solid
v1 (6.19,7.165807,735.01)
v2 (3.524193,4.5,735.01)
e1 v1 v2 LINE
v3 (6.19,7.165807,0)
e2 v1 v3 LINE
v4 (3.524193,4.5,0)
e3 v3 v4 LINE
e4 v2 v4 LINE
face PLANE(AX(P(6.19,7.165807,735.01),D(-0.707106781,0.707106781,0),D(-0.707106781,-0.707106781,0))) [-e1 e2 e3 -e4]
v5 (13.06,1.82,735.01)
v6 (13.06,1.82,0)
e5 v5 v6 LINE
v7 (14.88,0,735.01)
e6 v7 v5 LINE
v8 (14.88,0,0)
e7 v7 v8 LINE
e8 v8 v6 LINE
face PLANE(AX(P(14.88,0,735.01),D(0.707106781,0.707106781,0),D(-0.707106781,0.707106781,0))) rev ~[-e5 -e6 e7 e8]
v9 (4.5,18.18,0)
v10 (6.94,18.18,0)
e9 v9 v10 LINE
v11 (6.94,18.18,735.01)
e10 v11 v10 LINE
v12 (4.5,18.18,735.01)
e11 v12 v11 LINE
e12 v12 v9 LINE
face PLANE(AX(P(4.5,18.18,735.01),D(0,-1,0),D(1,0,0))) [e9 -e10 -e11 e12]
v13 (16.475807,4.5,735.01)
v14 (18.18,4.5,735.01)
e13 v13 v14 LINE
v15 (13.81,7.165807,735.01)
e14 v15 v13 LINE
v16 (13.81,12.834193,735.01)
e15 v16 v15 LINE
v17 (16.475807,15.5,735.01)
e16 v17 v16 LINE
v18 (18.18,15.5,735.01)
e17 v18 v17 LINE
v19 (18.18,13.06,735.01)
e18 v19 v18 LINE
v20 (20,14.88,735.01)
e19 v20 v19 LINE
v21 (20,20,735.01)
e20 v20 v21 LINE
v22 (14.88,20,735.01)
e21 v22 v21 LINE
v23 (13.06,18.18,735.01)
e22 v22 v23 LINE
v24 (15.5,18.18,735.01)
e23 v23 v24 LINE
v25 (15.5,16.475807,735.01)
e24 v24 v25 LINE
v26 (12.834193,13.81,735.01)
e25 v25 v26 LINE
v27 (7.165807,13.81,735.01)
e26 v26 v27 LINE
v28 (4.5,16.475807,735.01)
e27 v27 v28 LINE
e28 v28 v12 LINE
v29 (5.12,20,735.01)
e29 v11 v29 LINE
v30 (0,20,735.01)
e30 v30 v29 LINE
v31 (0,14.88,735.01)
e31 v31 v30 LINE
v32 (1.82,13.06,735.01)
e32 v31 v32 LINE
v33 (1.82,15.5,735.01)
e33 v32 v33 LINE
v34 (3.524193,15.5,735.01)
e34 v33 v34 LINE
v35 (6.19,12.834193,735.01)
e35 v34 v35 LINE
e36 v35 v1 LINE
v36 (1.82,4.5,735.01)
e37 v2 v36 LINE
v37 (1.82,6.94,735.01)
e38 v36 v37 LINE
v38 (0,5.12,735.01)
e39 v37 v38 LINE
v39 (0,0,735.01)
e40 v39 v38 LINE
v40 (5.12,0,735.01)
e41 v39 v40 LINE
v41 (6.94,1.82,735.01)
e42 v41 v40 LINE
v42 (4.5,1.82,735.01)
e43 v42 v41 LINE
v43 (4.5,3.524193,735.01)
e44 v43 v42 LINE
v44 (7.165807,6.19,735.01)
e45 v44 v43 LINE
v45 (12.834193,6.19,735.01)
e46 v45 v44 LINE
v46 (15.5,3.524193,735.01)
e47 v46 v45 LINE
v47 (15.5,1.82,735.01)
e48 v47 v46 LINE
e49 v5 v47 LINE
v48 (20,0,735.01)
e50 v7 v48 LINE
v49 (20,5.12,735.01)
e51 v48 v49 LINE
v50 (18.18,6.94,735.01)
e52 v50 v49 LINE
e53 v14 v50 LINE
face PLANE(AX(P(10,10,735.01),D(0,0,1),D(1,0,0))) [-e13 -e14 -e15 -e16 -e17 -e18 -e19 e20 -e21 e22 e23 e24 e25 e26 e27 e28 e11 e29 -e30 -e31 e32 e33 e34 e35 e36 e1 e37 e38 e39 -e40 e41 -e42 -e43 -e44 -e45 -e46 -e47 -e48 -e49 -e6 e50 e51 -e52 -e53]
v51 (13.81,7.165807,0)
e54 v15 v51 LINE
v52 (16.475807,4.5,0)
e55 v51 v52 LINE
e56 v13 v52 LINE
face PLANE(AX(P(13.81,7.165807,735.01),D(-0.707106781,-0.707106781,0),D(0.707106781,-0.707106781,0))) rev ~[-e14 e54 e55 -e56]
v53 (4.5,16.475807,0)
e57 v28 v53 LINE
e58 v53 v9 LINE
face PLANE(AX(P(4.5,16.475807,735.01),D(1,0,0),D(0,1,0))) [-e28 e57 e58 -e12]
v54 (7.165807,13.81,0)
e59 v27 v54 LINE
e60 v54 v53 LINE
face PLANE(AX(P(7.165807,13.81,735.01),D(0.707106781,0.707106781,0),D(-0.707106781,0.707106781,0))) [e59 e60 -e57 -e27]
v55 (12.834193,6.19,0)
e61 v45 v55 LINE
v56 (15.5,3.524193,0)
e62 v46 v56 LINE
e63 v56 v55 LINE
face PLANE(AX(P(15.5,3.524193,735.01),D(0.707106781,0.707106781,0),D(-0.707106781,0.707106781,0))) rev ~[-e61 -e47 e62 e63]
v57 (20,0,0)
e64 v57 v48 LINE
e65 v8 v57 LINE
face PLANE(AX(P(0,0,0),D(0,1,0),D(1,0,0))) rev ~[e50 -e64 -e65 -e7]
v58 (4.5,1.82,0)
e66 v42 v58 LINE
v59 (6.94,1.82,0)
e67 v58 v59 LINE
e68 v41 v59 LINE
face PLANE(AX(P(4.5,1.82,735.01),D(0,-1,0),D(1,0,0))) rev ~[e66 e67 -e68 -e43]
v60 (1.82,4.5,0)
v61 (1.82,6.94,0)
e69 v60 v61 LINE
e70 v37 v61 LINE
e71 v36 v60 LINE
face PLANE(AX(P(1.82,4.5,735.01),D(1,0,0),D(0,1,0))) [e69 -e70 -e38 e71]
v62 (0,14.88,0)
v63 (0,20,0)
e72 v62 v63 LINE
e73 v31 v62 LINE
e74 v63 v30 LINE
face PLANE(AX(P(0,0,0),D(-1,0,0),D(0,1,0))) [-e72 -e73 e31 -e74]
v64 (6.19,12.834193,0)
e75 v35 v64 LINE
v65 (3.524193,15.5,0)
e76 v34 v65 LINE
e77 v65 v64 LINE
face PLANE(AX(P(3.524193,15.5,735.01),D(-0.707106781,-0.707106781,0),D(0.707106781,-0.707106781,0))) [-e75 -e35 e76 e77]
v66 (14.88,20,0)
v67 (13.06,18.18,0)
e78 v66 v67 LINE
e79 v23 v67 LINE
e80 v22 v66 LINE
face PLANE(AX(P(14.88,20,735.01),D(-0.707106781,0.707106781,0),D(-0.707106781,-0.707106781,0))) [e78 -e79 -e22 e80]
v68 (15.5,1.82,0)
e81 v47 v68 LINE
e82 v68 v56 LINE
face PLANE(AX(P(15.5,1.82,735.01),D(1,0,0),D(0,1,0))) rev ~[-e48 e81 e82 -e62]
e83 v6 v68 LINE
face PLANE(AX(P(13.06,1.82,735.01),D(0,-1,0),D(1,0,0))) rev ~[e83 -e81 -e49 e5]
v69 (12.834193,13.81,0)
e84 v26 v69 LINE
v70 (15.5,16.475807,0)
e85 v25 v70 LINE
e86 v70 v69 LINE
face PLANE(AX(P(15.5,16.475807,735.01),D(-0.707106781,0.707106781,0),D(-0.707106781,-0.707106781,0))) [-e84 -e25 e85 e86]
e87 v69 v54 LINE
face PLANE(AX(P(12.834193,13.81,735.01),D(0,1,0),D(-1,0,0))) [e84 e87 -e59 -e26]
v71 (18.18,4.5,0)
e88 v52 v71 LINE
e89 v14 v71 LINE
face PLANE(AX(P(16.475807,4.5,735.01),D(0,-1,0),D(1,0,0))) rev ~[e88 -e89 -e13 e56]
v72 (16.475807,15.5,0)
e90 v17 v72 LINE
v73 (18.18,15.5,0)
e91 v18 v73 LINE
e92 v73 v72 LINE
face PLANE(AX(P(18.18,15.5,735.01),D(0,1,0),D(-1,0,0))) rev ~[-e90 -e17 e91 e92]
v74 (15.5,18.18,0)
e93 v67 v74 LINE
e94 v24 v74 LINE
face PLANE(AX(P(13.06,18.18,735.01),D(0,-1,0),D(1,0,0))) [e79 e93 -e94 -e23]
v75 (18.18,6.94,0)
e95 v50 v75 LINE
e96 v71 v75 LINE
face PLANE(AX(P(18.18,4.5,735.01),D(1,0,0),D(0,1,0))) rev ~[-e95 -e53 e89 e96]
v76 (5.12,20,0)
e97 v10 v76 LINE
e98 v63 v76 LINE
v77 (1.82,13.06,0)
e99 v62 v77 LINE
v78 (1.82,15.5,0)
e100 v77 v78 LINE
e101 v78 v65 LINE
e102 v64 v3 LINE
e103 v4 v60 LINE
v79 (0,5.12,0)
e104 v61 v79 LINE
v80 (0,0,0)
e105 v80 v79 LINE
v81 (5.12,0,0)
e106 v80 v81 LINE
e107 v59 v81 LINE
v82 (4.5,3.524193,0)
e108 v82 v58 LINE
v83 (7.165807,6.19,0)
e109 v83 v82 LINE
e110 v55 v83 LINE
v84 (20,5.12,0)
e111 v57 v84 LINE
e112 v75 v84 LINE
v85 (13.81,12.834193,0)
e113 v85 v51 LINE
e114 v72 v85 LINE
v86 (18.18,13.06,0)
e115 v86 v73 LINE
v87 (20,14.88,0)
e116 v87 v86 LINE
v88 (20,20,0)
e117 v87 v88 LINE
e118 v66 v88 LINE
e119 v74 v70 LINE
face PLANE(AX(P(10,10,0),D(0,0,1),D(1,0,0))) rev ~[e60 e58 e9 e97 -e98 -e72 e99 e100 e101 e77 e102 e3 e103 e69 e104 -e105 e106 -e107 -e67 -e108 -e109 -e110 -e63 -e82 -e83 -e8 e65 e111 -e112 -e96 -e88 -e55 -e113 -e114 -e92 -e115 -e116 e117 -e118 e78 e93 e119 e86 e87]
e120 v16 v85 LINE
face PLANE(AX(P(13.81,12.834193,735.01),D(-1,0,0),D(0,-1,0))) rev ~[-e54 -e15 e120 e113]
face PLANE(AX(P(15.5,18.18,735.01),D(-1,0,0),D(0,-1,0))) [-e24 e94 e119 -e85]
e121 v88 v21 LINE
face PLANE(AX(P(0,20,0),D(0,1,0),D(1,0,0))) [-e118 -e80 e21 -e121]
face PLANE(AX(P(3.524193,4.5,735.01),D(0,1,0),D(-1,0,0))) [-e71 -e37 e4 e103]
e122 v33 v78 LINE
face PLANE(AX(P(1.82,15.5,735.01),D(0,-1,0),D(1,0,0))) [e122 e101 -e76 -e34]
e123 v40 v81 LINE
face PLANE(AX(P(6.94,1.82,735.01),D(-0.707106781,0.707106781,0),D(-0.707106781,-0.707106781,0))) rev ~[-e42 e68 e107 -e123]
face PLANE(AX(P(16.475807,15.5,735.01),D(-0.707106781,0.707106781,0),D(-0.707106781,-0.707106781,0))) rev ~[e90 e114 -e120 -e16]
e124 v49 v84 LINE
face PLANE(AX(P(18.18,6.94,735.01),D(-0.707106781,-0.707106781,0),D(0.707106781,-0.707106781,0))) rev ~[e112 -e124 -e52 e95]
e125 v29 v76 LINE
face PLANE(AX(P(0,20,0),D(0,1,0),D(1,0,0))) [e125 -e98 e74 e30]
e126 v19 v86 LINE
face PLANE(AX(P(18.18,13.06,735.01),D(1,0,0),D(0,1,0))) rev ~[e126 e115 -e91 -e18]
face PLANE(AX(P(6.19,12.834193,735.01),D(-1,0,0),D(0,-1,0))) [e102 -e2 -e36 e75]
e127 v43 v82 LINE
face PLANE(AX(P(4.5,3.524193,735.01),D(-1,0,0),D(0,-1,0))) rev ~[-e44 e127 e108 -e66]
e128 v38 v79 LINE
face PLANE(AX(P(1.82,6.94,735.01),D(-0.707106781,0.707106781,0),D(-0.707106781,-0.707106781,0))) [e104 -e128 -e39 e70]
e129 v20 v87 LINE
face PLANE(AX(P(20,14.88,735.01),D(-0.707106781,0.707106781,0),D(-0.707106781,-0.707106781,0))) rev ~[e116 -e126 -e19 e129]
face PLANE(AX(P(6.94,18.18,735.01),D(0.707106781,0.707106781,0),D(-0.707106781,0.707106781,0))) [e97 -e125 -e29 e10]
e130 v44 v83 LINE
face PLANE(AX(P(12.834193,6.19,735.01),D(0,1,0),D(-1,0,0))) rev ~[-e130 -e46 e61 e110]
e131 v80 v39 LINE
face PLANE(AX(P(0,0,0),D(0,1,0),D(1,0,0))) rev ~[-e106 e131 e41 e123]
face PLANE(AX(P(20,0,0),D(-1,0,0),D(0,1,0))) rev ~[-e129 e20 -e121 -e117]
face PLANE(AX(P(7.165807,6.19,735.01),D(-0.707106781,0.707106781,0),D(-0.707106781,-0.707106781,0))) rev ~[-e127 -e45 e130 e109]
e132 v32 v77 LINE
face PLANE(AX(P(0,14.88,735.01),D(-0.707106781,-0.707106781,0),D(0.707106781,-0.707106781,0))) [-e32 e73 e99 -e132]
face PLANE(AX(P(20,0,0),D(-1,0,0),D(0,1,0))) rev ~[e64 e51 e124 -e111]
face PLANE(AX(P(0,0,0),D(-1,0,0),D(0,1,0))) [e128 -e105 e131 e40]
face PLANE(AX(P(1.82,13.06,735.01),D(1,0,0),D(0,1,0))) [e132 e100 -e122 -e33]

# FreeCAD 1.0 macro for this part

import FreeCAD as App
import Part
import Sketcher
from FreeCAD import Vector
Q = App.Units.Quantity

doc = App.newDocument("Part")
body = doc.addObject("PartDesign::Body", "Body")

sketch1 = body.newObject("Sketcher::SketchObject", "Sketch")
sketch1.AttachmentSupport = (doc.getObject("XY_Plane"), [""])
sketch1.MapMode = "FlatFace"
sketch1.addGeometry([
    Part.LineSegment(Vector(0, 20, 0), Vector(0, 0, 0)),
    Part.LineSegment(Vector(0, 0, 0), Vector(20, 0, 0)),
    Part.LineSegment(Vector(20, 0, 0), Vector(20, 20, 0)),
    Part.LineSegment(Vector(20, 20, 0), Vector(0, 20, 0)),
], False)
sketch1.addConstraint([
    Sketcher.Constraint("Coincident", 0, 2, 1, 1),
    Sketcher.Constraint("Coincident", 1, 2, 2, 1),
    Sketcher.Constraint("Coincident", 2, 2, 3, 1),
    Sketcher.Constraint("Coincident", 3, 2, 0, 1),
    Sketcher.Constraint("Vertical", 0),
    Sketcher.Constraint("Horizontal", 1),
    Sketcher.Constraint("Vertical", 2),
    Sketcher.Constraint("Horizontal", 3),
    Sketcher.Constraint("Coincident", 0, 2, -1, 1),
    Sketcher.Constraint("Equal", 3, 0),
    Sketcher.Constraint("DistanceX", 1, 1, 1, 2, Q("20 mm")),
])
pad1 = body.newObject("PartDesign::Pad", "Pad")
pad1.Profile = sketch1
pad1.Length = 735.01

sketch2 = body.newObject("Sketcher::SketchObject", "Sketch001")
sketch2.AttachmentSupport = (doc.getObject("XY_Plane"), [""])
sketch2.MapMode = "FlatFace"
sketch2.AttachmentOffset = App.Placement(Vector(0, 0, 735.01), App.Rotation())
sketch2.addGeometry([
    Part.LineSegment(Vector(6.94, 18.18, 0), Vector(4.5, 18.18, 0)),
    Part.LineSegment(Vector(4.5, 18.18, 0), Vector(4.5, 16.475807, 0)),
    Part.LineSegment(Vector(4.5, 16.475807, 0), Vector(7.165807, 13.81, 0)),
    Part.LineSegment(Vector(7.165807, 13.81, 0), Vector(12.834193, 13.81, 0)),
    Part.LineSegment(Vector(12.834193, 13.81, 0), Vector(15.5, 16.475807, 0)),
    Part.LineSegment(Vector(15.5, 16.475807, 0), Vector(15.5, 18.18, 0)),
    Part.LineSegment(Vector(15.5, 18.18, 0), Vector(13.06, 18.18, 0)),
    Part.LineSegment(Vector(13.06, 18.18, 0), Vector(14.88, 20, 0)),
    Part.LineSegment(Vector(14.88, 20, 0), Vector(5.12, 20, 0)),
    Part.LineSegment(Vector(5.12, 20, 0), Vector(6.94, 18.18, 0)),
    Part.LineSegment(Vector(14.88, 0, 0), Vector(13.06, 1.82, 0)),
    Part.LineSegment(Vector(13.06, 1.82, 0), Vector(15.5, 1.82, 0)),
    Part.LineSegment(Vector(15.5, 1.82, 0), Vector(15.5, 3.524193, 0)),
    Part.LineSegment(Vector(15.5, 3.524193, 0), Vector(12.834193, 6.19, 0)),
    Part.LineSegment(Vector(12.834193, 6.19, 0), Vector(7.165807, 6.19, 0)),
    Part.LineSegment(Vector(7.165807, 6.19, 0), Vector(4.5, 3.524193, 0)),
    Part.LineSegment(Vector(4.5, 3.524193, 0), Vector(4.5, 1.82, 0)),
    Part.LineSegment(Vector(4.5, 1.82, 0), Vector(6.94, 1.82, 0)),
    Part.LineSegment(Vector(6.94, 1.82, 0), Vector(5.12, 0, 0)),
    Part.LineSegment(Vector(5.12, 0, 0), Vector(14.88, 0, 0)),
    Part.LineSegment(Vector(1.82, 6.94, 0), Vector(1.82, 4.5, 0)),
    Part.LineSegment(Vector(1.82, 4.5, 0), Vector(3.524193, 4.5, 0)),
    Part.LineSegment(Vector(3.524193, 4.5, 0), Vector(6.19, 7.165807, 0)),
    Part.LineSegment(Vector(6.19, 7.165807, 0), Vector(6.19, 12.834193, 0)),
    Part.LineSegment(Vector(6.19, 12.834193, 0), Vector(3.524193, 15.5, 0)),
    Part.LineSegment(Vector(3.524193, 15.5, 0), Vector(1.82, 15.5, 0)),
    Part.LineSegment(Vector(1.82, 15.5, 0), Vector(1.82, 13.06, 0)),
    Part.LineSegment(Vector(1.82, 13.06, 0), Vector(0, 14.88, 0)),
    Part.LineSegment(Vector(0, 14.88, 0), Vector(0, 5.12, 0)),
    Part.LineSegment(Vector(0, 5.12, 0), Vector(1.82, 6.94, 0)),
    Part.LineSegment(Vector(20, 14.88, 0), Vector(18.18, 13.06, 0)),
    Part.LineSegment(Vector(18.18, 13.06, 0), Vector(18.18, 15.5, 0)),
    Part.LineSegment(Vector(18.18, 15.5, 0), Vector(16.475807, 15.5, 0)),
    Part.LineSegment(Vector(16.475807, 15.5, 0), Vector(13.81, 12.834193, 0)),
    Part.LineSegment(Vector(13.81, 12.834193, 0), Vector(13.81, 7.165807, 0)),
    Part.LineSegment(Vector(13.81, 7.165807, 0), Vector(16.475807, 4.5, 0)),
    Part.LineSegment(Vector(16.475807, 4.5, 0), Vector(18.18, 4.5, 0)),
    Part.LineSegment(Vector(18.18, 4.5, 0), Vector(18.18, 6.94, 0)),
    Part.LineSegment(Vector(18.18, 6.94, 0), Vector(20, 5.12, 0)),
    Part.LineSegment(Vector(20, 5.12, 0), Vector(20, 14.88, 0)),
], False)
sketch2.addConstraint([
    Sketcher.Constraint("Coincident", 0, 2, 1, 1),
    Sketcher.Constraint("Coincident", 1, 2, 2, 1),
    Sketcher.Constraint("Coincident", 2, 2, 3, 1),
    Sketcher.Constraint("Coincident", 3, 2, 4, 1),
    Sketcher.Constraint("Coincident", 4, 2, 5, 1),
    Sketcher.Constraint("Coincident", 5, 2, 6, 1),
    Sketcher.Constraint("Coincident", 6, 2, 7, 1),
    Sketcher.Constraint("Coincident", 7, 2, 8, 1),
    Sketcher.Constraint("Coincident", 8, 2, 9, 1),
    Sketcher.Constraint("Coincident", 9, 2, 0, 1),
    Sketcher.Constraint("Coincident", 10, 2, 11, 1),
    Sketcher.Constraint("Coincident", 11, 2, 12, 1),
    Sketcher.Constraint("Coincident", 12, 2, 13, 1),
    Sketcher.Constraint("Coincident", 13, 2, 14, 1),
    Sketcher.Constraint("Coincident", 14, 2, 15, 1),
    Sketcher.Constraint("Coincident", 15, 2, 16, 1),
    Sketcher.Constraint("Coincident", 16, 2, 17, 1),
    Sketcher.Constraint("Coincident", 17, 2, 18, 1),
    Sketcher.Constraint("Coincident", 18, 2, 19, 1),
    Sketcher.Constraint("Coincident", 19, 2, 10, 1),
    Sketcher.Constraint("Coincident", 20, 2, 21, 1),
    Sketcher.Constraint("Coincident", 21, 2, 22, 1),
    Sketcher.Constraint("Coincident", 22, 2, 23, 1),
    Sketcher.Constraint("Coincident", 23, 2, 24, 1),
    Sketcher.Constraint("Coincident", 24, 2, 25, 1),
    Sketcher.Constraint("Coincident", 25, 2, 26, 1),
    Sketcher.Constraint("Coincident", 26, 2, 27, 1),
    Sketcher.Constraint("Coincident", 27, 2, 28, 1),
    Sketcher.Constraint("Coincident", 28, 2, 29, 1),
    Sketcher.Constraint("Coincident", 29, 2, 20, 1),
    Sketcher.Constraint("Coincident", 30, 2, 31, 1),
    Sketcher.Constraint("Coincident", 31, 2, 32, 1),
    Sketcher.Constraint("Coincident", 32, 2, 33, 1),
    Sketcher.Constraint("Coincident", 33, 2, 34, 1),
    Sketcher.Constraint("Coincident", 34, 2, 35, 1),
    Sketcher.Constraint("Coincident", 35, 2, 36, 1),
    Sketcher.Constraint("Coincident", 36, 2, 37, 1),
    Sketcher.Constraint("Coincident", 37, 2, 38, 1),
    Sketcher.Constraint("Coincident", 38, 2, 39, 1),
    Sketcher.Constraint("Coincident", 39, 2, 30, 1),
    Sketcher.Constraint("Horizontal", 0),
    Sketcher.Constraint("Vertical", 1),
    Sketcher.Constraint("Horizontal", 3),
    Sketcher.Constraint("Vertical", 5),
    Sketcher.Constraint("Horizontal", 6),
    Sketcher.Constraint("Horizontal", 8),
    Sketcher.Constraint("Horizontal", 11),
    Sketcher.Constraint("Vertical", 12),
    Sketcher.Constraint("Horizontal", 14),
    Sketcher.Constraint("Vertical", 16),
    Sketcher.Constraint("Horizontal", 17),
    Sketcher.Constraint("Horizontal", 19),
    Sketcher.Constraint("Vertical", 20),
    Sketcher.Constraint("Horizontal", 21),
    Sketcher.Constraint("Vertical", 23),
    Sketcher.Constraint("Horizontal", 25),
    Sketcher.Constraint("Vertical", 26),
    Sketcher.Constraint("Vertical", 28),
    Sketcher.Constraint("Vertical", 31),
    Sketcher.Constraint("Horizontal", 32),
    Sketcher.Constraint("Vertical", 34),
    Sketcher.Constraint("Horizontal", 36),
    Sketcher.Constraint("Vertical", 37),
    Sketcher.Constraint("Vertical", 39),
    Sketcher.Constraint("PointOnObject", 18, 2, -1),
    Sketcher.Constraint("PointOnObject", 27, 2, -2),
    Sketcher.Constraint("Perpendicular", 2, 4),
    Sketcher.Constraint("Parallel", 4, 7),
    Sketcher.Constraint("Perpendicular", 7, 9),
    Sketcher.Constraint("Parallel", 9, 10),
    Sketcher.Constraint("Parallel", 10, 13),
    Sketcher.Constraint("Perpendicular", 13, 15),
    Sketcher.Constraint("Parallel", 15, 18),
    Sketcher.Constraint("Parallel", 18, 22),
    Sketcher.Constraint("Perpendicular", 22, 24),
    Sketcher.Constraint("Parallel", 24, 27),
    Sketcher.Constraint("Perpendicular", 27, 29),
    Sketcher.Constraint("Parallel", 29, 30),
    Sketcher.Constraint("Parallel", 30, 33),
    Sketcher.Constraint("Perpendicular", 33, 35),
    Sketcher.Constraint("Parallel", 35, 38),
    Sketcher.Constraint("Horizontal", 1, 2, 4, 2),
    Sketcher.Constraint("Horizontal", 0, 2, 5, 2),
    Sketcher.Constraint("Horizontal", 12, 2, 15, 2),
    Sketcher.Constraint("Horizontal", 11, 2, 16, 2),
    Sketcher.Constraint("Horizontal", 26, 2, 30, 2),
    Sketcher.Constraint("Horizontal", 25, 2, 31, 2),
    Sketcher.Constraint("Horizontal", 23, 2, 33, 2),
    Sketcher.Constraint("Horizontal", 22, 2, 34, 2),
    Sketcher.Constraint("Horizontal", 21, 2, 35, 2),
    Sketcher.Constraint("Horizontal", 29, 2, 37, 2),
    Sketcher.Constraint("Horizontal", 28, 2, 38, 2),
    Sketcher.Constraint("Horizontal", 27, 2, 39, 2),
    Sketcher.Constraint("Vertical", 6, 2, 10, 2),
    Sketcher.Constraint("Vertical", 5, 2, 11, 2),
    Sketcher.Constraint("Vertical", 3, 2, 13, 2),
    Sketcher.Constraint("Vertical", 2, 2, 14, 2),
    Sketcher.Constraint("Vertical", 1, 2, 15, 2),
    Sketcher.Constraint("Vertical", 9, 2, 17, 2),
    Sketcher.Constraint("Vertical", 8, 2, 18, 2),
    Sketcher.Constraint("Vertical", 21, 2, 24, 2),
    Sketcher.Constraint("Vertical", 20, 2, 25, 2),
    Sketcher.Constraint("Equal", 0, 6),
    Sketcher.Constraint("Equal", 25, 32),
    Sketcher.Constraint("Equal", 36, 1),
    Sketcher.Constraint("Equal", 5, 12),
    Sketcher.Constraint("Equal", 17, 20),
    Sketcher.Constraint("Equal", 14, 23),
    Sketcher.Constraint("Equal", 20, 26),
    Sketcher.Constraint("Equal", 19, 28),
    Sketcher.Constraint("Equal", 15, 22),
    Sketcher.Constraint("DistanceY", -1, 1, 7, 2, Q("20 mm")),
    Sketcher.Constraint("DistanceX", -1, 1, 38, 2, Q("20 mm")),
    Sketcher.Constraint("DistanceX", 1, 2, 4, 2, Q("11 mm")),
    Sketcher.Constraint("DistanceX", 0, 2, 0, 1, Q("2.44 mm")),
    Sketcher.Constraint("DistanceX", 8, 2, 8, 1, Q("9.76 mm")),
    Sketcher.Constraint("DistanceX", -1, 1, 0, 2, Q("4.5 mm")),
    Sketcher.Constraint("DistanceY", -1, 1, 20, 2, Q("4.5 mm")),
    Sketcher.Constraint("DistanceY", -1, 1, 2, 2, Q("13.81 mm")),
    Sketcher.Constraint("Distance", 2, Q("3.770021 mm")),
])
pocket1 = body.newObject("PartDesign::Pocket", "Pocket")
pocket1.Profile = sketch2
pocket1.Type = "ThroughAll"

doc.recompute()
